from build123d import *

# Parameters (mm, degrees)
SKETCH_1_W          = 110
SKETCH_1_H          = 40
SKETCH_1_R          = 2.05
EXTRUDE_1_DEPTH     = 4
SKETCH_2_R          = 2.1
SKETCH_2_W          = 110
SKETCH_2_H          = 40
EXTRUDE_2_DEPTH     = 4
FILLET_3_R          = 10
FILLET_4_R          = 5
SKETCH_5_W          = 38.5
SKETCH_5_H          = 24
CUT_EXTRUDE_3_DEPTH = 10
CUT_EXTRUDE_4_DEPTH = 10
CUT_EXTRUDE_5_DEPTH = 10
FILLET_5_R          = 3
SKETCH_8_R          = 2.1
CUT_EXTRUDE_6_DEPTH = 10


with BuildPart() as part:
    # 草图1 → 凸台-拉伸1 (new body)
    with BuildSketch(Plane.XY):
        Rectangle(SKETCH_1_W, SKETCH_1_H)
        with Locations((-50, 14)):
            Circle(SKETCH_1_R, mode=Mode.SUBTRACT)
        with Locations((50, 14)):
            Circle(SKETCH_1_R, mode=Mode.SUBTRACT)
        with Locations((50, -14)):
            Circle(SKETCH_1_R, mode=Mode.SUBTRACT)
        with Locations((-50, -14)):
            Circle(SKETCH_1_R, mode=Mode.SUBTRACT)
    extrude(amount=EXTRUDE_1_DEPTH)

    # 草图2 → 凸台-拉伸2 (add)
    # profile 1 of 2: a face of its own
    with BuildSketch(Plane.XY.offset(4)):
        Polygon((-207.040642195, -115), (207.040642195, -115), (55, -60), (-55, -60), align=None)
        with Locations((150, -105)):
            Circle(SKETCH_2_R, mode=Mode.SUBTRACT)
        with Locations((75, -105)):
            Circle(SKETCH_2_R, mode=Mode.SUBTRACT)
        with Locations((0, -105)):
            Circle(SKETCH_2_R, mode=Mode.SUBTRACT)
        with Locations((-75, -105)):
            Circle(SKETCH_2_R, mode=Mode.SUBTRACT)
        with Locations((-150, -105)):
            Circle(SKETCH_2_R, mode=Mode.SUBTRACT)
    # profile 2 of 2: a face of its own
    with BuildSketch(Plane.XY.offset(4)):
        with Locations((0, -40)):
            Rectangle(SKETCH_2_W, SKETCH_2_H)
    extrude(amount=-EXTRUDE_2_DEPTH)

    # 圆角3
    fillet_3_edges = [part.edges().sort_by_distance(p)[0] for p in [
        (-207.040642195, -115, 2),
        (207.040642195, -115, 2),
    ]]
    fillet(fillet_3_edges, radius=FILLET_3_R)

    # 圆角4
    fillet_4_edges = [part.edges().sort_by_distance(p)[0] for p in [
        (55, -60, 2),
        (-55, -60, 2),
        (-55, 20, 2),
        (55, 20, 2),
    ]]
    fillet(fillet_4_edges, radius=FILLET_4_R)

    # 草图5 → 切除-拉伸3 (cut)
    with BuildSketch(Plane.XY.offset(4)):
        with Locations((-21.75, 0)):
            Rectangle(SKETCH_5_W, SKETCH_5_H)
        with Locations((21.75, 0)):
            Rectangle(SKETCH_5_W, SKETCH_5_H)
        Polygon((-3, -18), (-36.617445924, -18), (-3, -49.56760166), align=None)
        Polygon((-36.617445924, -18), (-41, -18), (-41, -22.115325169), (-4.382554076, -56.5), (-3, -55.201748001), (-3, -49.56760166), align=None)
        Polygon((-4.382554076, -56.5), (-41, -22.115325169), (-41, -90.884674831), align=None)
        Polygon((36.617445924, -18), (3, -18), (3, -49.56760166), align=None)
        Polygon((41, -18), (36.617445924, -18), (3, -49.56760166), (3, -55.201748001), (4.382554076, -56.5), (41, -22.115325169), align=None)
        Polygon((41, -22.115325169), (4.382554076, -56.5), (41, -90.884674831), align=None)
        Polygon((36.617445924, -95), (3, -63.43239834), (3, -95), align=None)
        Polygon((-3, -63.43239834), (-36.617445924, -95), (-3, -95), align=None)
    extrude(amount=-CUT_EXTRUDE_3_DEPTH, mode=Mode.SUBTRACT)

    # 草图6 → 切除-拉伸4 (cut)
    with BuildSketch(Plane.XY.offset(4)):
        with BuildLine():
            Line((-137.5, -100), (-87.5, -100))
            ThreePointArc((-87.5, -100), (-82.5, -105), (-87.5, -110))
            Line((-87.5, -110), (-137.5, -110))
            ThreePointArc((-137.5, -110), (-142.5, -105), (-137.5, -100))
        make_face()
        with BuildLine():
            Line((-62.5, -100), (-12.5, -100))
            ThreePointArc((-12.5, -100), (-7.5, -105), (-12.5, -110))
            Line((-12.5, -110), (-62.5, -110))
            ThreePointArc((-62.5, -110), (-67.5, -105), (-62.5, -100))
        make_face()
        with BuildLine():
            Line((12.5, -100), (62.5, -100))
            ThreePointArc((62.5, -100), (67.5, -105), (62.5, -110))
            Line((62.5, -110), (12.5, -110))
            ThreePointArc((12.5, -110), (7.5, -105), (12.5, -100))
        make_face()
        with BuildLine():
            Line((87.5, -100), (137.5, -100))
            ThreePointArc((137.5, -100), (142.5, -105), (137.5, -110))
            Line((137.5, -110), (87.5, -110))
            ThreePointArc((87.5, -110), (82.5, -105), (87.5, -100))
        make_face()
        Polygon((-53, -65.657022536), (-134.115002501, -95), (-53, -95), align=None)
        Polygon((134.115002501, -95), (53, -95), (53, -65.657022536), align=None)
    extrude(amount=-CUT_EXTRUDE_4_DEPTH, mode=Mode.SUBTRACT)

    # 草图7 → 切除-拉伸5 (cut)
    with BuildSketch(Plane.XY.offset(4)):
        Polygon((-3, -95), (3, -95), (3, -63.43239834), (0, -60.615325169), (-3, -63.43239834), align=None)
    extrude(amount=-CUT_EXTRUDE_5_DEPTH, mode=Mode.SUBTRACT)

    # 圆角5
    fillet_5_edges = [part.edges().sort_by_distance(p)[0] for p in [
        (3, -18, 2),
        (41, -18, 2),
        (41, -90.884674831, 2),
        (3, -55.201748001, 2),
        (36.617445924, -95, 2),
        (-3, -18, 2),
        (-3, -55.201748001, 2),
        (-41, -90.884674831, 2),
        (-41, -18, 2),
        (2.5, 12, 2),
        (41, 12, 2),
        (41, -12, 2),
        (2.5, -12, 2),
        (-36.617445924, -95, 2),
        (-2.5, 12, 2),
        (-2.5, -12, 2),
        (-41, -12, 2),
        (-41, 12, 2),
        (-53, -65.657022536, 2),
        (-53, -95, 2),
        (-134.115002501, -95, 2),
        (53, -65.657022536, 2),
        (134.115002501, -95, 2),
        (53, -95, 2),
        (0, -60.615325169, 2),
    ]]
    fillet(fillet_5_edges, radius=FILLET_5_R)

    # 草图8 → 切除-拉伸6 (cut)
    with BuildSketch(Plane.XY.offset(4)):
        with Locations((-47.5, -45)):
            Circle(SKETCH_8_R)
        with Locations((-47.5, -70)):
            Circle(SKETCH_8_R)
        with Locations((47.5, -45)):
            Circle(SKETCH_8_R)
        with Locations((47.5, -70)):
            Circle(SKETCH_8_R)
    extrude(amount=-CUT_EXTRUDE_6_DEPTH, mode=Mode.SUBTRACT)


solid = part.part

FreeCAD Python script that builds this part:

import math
import FreeCAD as App
import Part
import Sketcher

V = App.Vector


def edges_at(feature, points):
    """Names of the edges that pass closest to the given points."""
    edges = feature.Shape.Edges
    near = lambda p: min(range(len(edges)), key=lambda i: edges[i].distToShape(Part.Vertex(*p))[0])
    return sorted({f"Edge{near(p) + 1}" for p in points})


def add_polygon(sketch, points):
    """Adds a closed chain of lines whose ends are joined by coincident constraints."""
    first, n = sketch.GeometryCount, len(points)
    for a, b in zip(points, points[1:] + points[:1]):
        sketch.addGeometry(Part.LineSegment(App.Vector(*a, 0), App.Vector(*b, 0)), False)
    for i in range(n):
        sketch.addConstraint(Sketcher.Constraint("Coincident", first + i, 2, first + (i + 1) % n, 1))

doc = App.newDocument("Part")
body = doc.addObject("PartDesign::Body", "Body")

# Sketch on XY plane
sketch1 = doc.addObject("Sketcher::SketchObject", "Sketch")
body.addObject(sketch1)
sketch1.AttachmentSupport = (doc.XY_Plane, [""])
sketch1.MapMode = "FlatFace"
add_polygon(sketch1, [(-55, 20), (-55, -20), (55, -20), (55, 20)])  # lines 0-3
sketch1.addGeometry(Part.Circle(V(-50, -14, 0), V(0, 0, 1), 2), False)  # 4
sketch1.addGeometry(Part.Circle(V(50, -14, 0), V(0, 0, 1), 2), False)  # 5
sketch1.addGeometry(Part.Circle(V(-50, 14, 0), V(0, 0, 1), 2), False)  # 6
sketch1.addGeometry(Part.Circle(V(50, 14, 0), V(0, 0, 1), 2), False)  # 7
sketch1.addConstraint(Sketcher.Constraint("Vertical", 0))
sketch1.addConstraint(Sketcher.Constraint("Horizontal", 1))
sketch1.addConstraint(Sketcher.Constraint("Vertical", 2))
sketch1.addConstraint(Sketcher.Constraint("Horizontal", 3))
sketch1.addConstraint(Sketcher.Constraint("Equal", 4, 5))
sketch1.addConstraint(Sketcher.Constraint("Equal", 5, 6))
sketch1.addConstraint(Sketcher.Constraint("Equal", 6, 7))
sketch1.addConstraint(Sketcher.Constraint("Symmetric", 5, 3, 6, 3, -1, 1))
sketch1.addConstraint(Sketcher.Constraint("Symmetric", 4, 3, 7, 3, -1, 1))
sketch1.addConstraint(Sketcher.Constraint("Symmetric", 0, 2, 2, 2, -1, 1))
sketch1.addConstraint(Sketcher.Constraint("Symmetric", 4, 3, 5, 3, -2))
sketch1.addConstraint(Sketcher.Constraint("Diameter", 4, 4.1))
sketch1.addConstraint(Sketcher.Constraint("DistanceX", 1, 1, 1, 2, 110.0))
sketch1.addConstraint(Sketcher.Constraint("DistanceY", 0, 2, 0, 1, 40.0))
sketch1.addConstraint(Sketcher.Constraint("DistanceX", 4, 3, -1, 1, 50.0))
sketch1.addConstraint(Sketcher.Constraint("DistanceY", 4, 3, -1, 1, 14.0))
pad1 = doc.addObject("PartDesign::Pad", "Pad")
body.addObject(pad1)
pad1.Profile = sketch1
pad1.Length = 4

# Sketch on XY plane
sketch2 = doc.addObject("Sketcher::SketchObject", "Sketch001")
body.addObject(sketch2)
sketch2.AttachmentSupport = (doc.XY_Plane, [""])
sketch2.MapMode = "FlatFace"
sketch2.AttachmentOffset = App.Placement(V(0, 0, 4), App.Rotation())
add_polygon(sketch2, [(-207, -115), (207, -115), (55, -60), (55, -20), (-55, -20), (-55, -60)])  # lines 0-5
sketch2.addGeometry(Part.Circle(V(-150, -105, 0), V(0, 0, 1), 2.1), False)  # 6
sketch2.addGeometry(Part.Circle(V(-75, -105, 0), V(0, 0, 1), 2.1), False)  # 7
sketch2.addGeometry(Part.Circle(V(0, -105, 0), V(0, 0, 1), 2.1), False)  # 8
sketch2.addGeometry(Part.Circle(V(75, -105, 0), V(0, 0, 1), 2.1), False)  # 9
sketch2.addGeometry(Part.Circle(V(150, -105, 0), V(0, 0, 1), 2.1), False)  # 10
sketch2.addConstraint(Sketcher.Constraint("Horizontal", 0))
sketch2.addConstraint(Sketcher.Constraint("Vertical", 2))
sketch2.addConstraint(Sketcher.Constraint("Horizontal", 3))
sketch2.addConstraint(Sketcher.Constraint("Vertical", 4))
sketch2.addConstraint(Sketcher.Constraint("Equal", 6, 7))
sketch2.addConstraint(Sketcher.Constraint("Equal", 7, 8))
sketch2.addConstraint(Sketcher.Constraint("Equal", 8, 9))
sketch2.addConstraint(Sketcher.Constraint("Equal", 9, 10))
sketch2.addConstraint(Sketcher.Constraint("Symmetric", 7, 3, 9, 3, -2))
sketch2.addConstraint(Sketcher.Constraint("Symmetric", 6, 3, 10, 3, -2))
sketch2.addConstraint(Sketcher.Constraint("Symmetric", 1, 2, 4, 2, -2))
sketch2.addConstraint(Sketcher.Constraint("PointOnObject", 8, 3, -2))
sketch2.addConstraint(Sketcher.Constraint("Horizontal", 6, 3, 7, 3))
sketch2.addConstraint(Sketcher.Constraint("Horizontal", 7, 3, 8, 3))
sketch2.addConstraint(Sketcher.Constraint("Equal", 1, 5))
sketch2.addConstraint(Sketcher.Constraint("Diameter", 6, 4.2))
sketch2.addConstraint(Sketcher.Constraint("DistanceX", 3, 2, 3, 1, 110.0))
sketch2.addConstraint(Sketcher.Constraint("DistanceY", 2, 1, 2, 2, 40.0))
sketch2.addConstraint(Sketcher.Constraint("DistanceX", 6, 3, -1, 1, 150.0))
sketch2.addConstraint(Sketcher.Constraint("DistanceY", 6, 3, -1, 1, 105.0))
sketch2.addConstraint(Sketcher.Constraint("DistanceX", 7, 3, -1, 1, 75.0))
sketch2.addConstraint(Sketcher.Constraint("DistanceY", 0, 2, -1, 1, 115.0))
sketch2.addConstraint(Sketcher.Constraint("DistanceY", 1, 2, -1, 1, 60.0))
sketch2.addConstraint(Sketcher.Constraint("Distance", 1, 161.68289))
pad2 = doc.addObject("PartDesign::Pad", "Pad001")
body.addObject(pad2)
pad2.Profile = sketch2
pad2.Length = 4
pad2.Reversed = True
doc.recompute()

fillet = doc.addObject("PartDesign::Fillet", "Fillet")
body.addObject(fillet)
fillet.Base = (pad2, edges_at(pad2, [(-207.041, -115, 2), (207.041, -115, 2)]))
fillet.Radius = 10
doc.recompute()

fillet2 = doc.addObject("PartDesign::Fillet", "Fillet001")
body.addObject(fillet2)
fillet2.Base = (fillet, edges_at(fillet, [
    (55, -60, 2),
    (-55, -60, 2),
    (-55, 20, 2),
    (55, 20, 2),
]))
fillet2.Radius = 5

# Sketch on XY plane
sketch3 = doc.addObject("Sketcher::SketchObject", "Sketch002")
body.addObject(sketch3)
sketch3.AttachmentSupport = (doc.XY_Plane, [""])
sketch3.MapMode = "FlatFace"
sketch3.AttachmentOffset = App.Placement(V(0, 0, 4), App.Rotation())
add_polygon(sketch3, [(-41, 12), (-41, -12), (-2.5, -12), (-2.5, 12)])  # lines 0-3
add_polygon(sketch3, [(2.5, 12), (2.5, -12), (41, -12), (41, 12)])  # lines 4-7
add_polygon(sketch3, [(-3, -18), (-41, -18), (-41, -90.9), (-4.4, -56.5), (-3, -55.2)])  # lines 8-12
add_polygon(sketch3, [(3, -18), (3, -55.2), (4.4, -56.5), (41, -90.9), (41, -18)])  # lines 13-17
add_polygon(sketch3, [(36.6, -95), (3, -63.4), (3, -95)])  # lines 18-20
add_polygon(sketch3, [(-3, -63.4), (-36.6, -95), (-3, -95)])  # lines 21-23
sketch3.addConstraint(Sketcher.Constraint("Vertical", 0))
sketch3.addConstraint(Sketcher.Constraint("Horizontal", 1))
sketch3.addConstraint(Sketcher.Constraint("Vertical", 2))
sketch3.addConstraint(Sketcher.Constraint("Horizontal", 3))
sketch3.addConstraint(Sketcher.Constraint("Vertical", 4))
sketch3.addConstraint(Sketcher.Constraint("Horizontal", 5))
sketch3.addConstraint(Sketcher.Constraint("Vertical", 6))
sketch3.addConstraint(Sketcher.Constraint("Horizontal", 7))
sketch3.addConstraint(Sketcher.Constraint("Horizontal", 8))
sketch3.addConstraint(Sketcher.Constraint("Vertical", 9))
sketch3.addConstraint(Sketcher.Constraint("Vertical", 12))
sketch3.addConstraint(Sketcher.Constraint("Vertical", 13))
sketch3.addConstraint(Sketcher.Constraint("Vertical", 16))
sketch3.addConstraint(Sketcher.Constraint("Horizontal", 17))
sketch3.addConstraint(Sketcher.Constraint("Vertical", 19))
sketch3.addConstraint(Sketcher.Constraint("Horizontal", 20))
sketch3.addConstraint(Sketcher.Constraint("Horizontal", 22))
sketch3.addConstraint(Sketcher.Constraint("Vertical", 23))
sketch3.addConstraint(Sketcher.Constraint("Symmetric", 2, 2, 4, 2, -1, 1))
sketch3.addConstraint(Sketcher.Constraint("Symmetric", 0, 2, 6, 2, -1, 1))
sketch3.addConstraint(Sketcher.Constraint("Symmetric", 11, 2, 13, 2, -2))
sketch3.addConstraint(Sketcher.Constraint("Symmetric", 10, 2, 14, 2, -2))
sketch3.addConstraint(Sketcher.Constraint("Symmetric", 9, 2, 15, 2, -2))
sketch3.addConstraint(Sketcher.Constraint("Symmetric", 20, 2, 21, 2, -2))
sketch3.addConstraint(Sketcher.Constraint("Symmetric", 18, 2, 23, 2, -2))
sketch3.addConstraint(Sketcher.Constraint("Parallel", 10, 11))
sketch3.addConstraint(Sketcher.Constraint("Parallel", 15, 18))
sketch3.addConstraint(Sketcher.Constraint("Horizontal", 1, 2, 4, 2))
sketch3.addConstraint(Sketcher.Constraint("Horizontal", 12, 2, 16, 2))
sketch3.addConstraint(Sketcher.Constraint("Vertical", 3, 2, 8, 2))
sketch3.addConstraint(Sketcher.Constraint("Vertical", 17, 2, 18, 2))
sketch3.addConstraint(Sketcher.Constraint("DistanceX", 8, 2, 8, 1, 38.0))
sketch3.addConstraint(Sketcher.Constraint("DistanceY", 0, 2, 0, 1, 24.0))
sketch3.addConstraint(Sketcher.Constraint("DistanceX", 1, 1, 1, 2, 38.5))
sketch3.addConstraint(Sketcher.Constraint("DistanceX", 0, 2, -1, 1, 41.0))
sketch3.addConstraint(Sketcher.Constraint("DistanceY", 8, 2, -1, 1, 18.0))
sketch3.addConstraint(Sketcher.Constraint("DistanceY", 19, 2, -1, 1, 95.0))
sketch3.addConstraint(Sketcher.Constraint("DistanceY", 10, 2, -1, 1, 56.5))
sketch3.addConstraint(Sketcher.Constraint("DistanceY", 19, 2, 19, 1, 31.567602))
sketch3.addConstraint(Sketcher.Constraint("Distance", 10, 50.230899))
sketch3.addConstraint(Sketcher.Constraint("DistanceY", 12, 1, 12, 2, 37.201748))
pocket1 = doc.addObject("PartDesign::Pocket", "Pocket")
body.addObject(pocket1)
pocket1.Profile = sketch3
pocket1.Length = 10

# Sketch on XY plane
sketch4 = doc.addObject("Sketcher::SketchObject", "Sketch003")
body.addObject(sketch4)
sketch4.AttachmentSupport = (doc.XY_Plane, [""])
sketch4.MapMode = "FlatFace"
sketch4.AttachmentOffset = App.Placement(V(0, 0, 4), App.Rotation())
sketch4.addGeometry(Part.LineSegment(V(-88, -100, 0), V(-138, -100, 0)), False)  # 0
sketch4.addGeometry(Part.ArcOfCircle(Part.Circle(V(-138, -105, 0), V(0, 0, 1), 5), math.radians(90), math.radians(270)), False)  # 1
sketch4.addGeometry(Part.LineSegment(V(-138, -110, 0), V(-88, -110, 0)), False)  # 2
sketch4.addGeometry(Part.ArcOfCircle(Part.Circle(V(-88, -105, 0), V(0, 0, 1), 5), math.radians(-90), math.radians(90)), False)  # 3
sketch4.addGeometry(Part.LineSegment(V(-12, -100, 0), V(-62, -100, 0)), False)  # 4
sketch4.addGeometry(Part.ArcOfCircle(Part.Circle(V(-62, -105, 0), V(0, 0, 1), 5), math.radians(90), math.radians(270)), False)  # 5
sketch4.addGeometry(Part.LineSegment(V(-62, -110, 0), V(-12, -110, 0)), False)  # 6
sketch4.addGeometry(Part.ArcOfCircle(Part.Circle(V(-12, -105, 0), V(0, 0, 1), 5), math.radians(-90), math.radians(90)), False)  # 7
sketch4.addGeometry(Part.LineSegment(V(62, -100, 0), V(12, -100, 0)), False)  # 8
sketch4.addGeometry(Part.ArcOfCircle(Part.Circle(V(12, -105, 0), V(0, 0, 1), 5), math.radians(90), math.radians(270)), False)  # 9
sketch4.addGeometry(Part.LineSegment(V(12, -110, 0), V(62, -110, 0)), False)  # 10
sketch4.addGeometry(Part.ArcOfCircle(Part.Circle(V(62, -105, 0), V(0, 0, 1), 5), math.radians(-90), math.radians(90)), False)  # 11
sketch4.addGeometry(Part.LineSegment(V(138, -100, 0), V(88, -100, 0)), False)  # 12
sketch4.addGeometry(Part.ArcOfCircle(Part.Circle(V(88, -105, 0), V(0, 0, 1), 5), math.radians(90), math.radians(270)), False)  # 13
sketch4.addGeometry(Part.LineSegment(V(88, -110, 0), V(138, -110, 0)), False)  # 14
sketch4.addGeometry(Part.ArcOfCircle(Part.Circle(V(138, -105, 0), V(0, 0, 1), 5), math.radians(-90), math.radians(90)), False)  # 15
add_polygon(sketch4, [(-53, -66), (-134, -95), (-53, -95)])  # lines 16-18
add_polygon(sketch4, [(53, -95), (134, -95), (53, -66)])  # lines 19-21
sketch4.addConstraint(Sketcher.Constraint("Tangent", 0, 2, 1, 1))
sketch4.addConstraint(Sketcher.Constraint("Tangent", 1, 2, 2, 1))
sketch4.addConstraint(Sketcher.Constraint("Tangent", 2, 2, 3, 1))
sketch4.addConstraint(Sketcher.Constraint("Tangent", 3, 2, 0, 1))
sketch4.addConstraint(Sketcher.Constraint("Tangent", 4, 2, 5, 1))
sketch4.addConstraint(Sketcher.Constraint("Tangent", 5, 2, 6, 1))
sketch4.addConstraint(Sketcher.Constraint("Tangent", 6, 2, 7, 1))
sketch4.addConstraint(Sketcher.Constraint("Tangent", 7, 2, 4, 1))
sketch4.addConstraint(Sketcher.Constraint("Tangent", 8, 2, 9, 1))
sketch4.addConstraint(Sketcher.Constraint("Tangent", 9, 2, 10, 1))
sketch4.addConstraint(Sketcher.Constraint("Tangent", 10, 2, 11, 1))
sketch4.addConstraint(Sketcher.Constraint("Tangent", 11, 2, 8, 1))
sketch4.addConstraint(Sketcher.Constraint("Tangent", 12, 2, 13, 1))
sketch4.addConstraint(Sketcher.Constraint("Tangent", 13, 2, 14, 1))
sketch4.addConstraint(Sketcher.Constraint("Tangent", 14, 2, 15, 1))
sketch4.addConstraint(Sketcher.Constraint("Tangent", 15, 2, 12, 1))
sketch4.addConstraint(Sketcher.Constraint("Horizontal", 0))
sketch4.addConstraint(Sketcher.Constraint("Horizontal", 2))
sketch4.addConstraint(Sketcher.Constraint("Horizontal", 4))
sketch4.addConstraint(Sketcher.Constraint("Horizontal", 6))
sketch4.addConstraint(Sketcher.Constraint("Horizontal", 8))
sketch4.addConstraint(Sketcher.Constraint("Horizontal", 10))
sketch4.addConstraint(Sketcher.Constraint("Horizontal", 12))
sketch4.addConstraint(Sketcher.Constraint("Horizontal", 14))
sketch4.addConstraint(Sketcher.Constraint("Horizontal", 17))
sketch4.addConstraint(Sketcher.Constraint("Vertical", 18))
sketch4.addConstraint(Sketcher.Constraint("Horizontal", 19))
sketch4.addConstraint(Sketcher.Constraint("Vertical", 21))
sketch4.addConstraint(Sketcher.Constraint("Equal", 3, 5))
sketch4.addConstraint(Sketcher.Constraint("Equal", 7, 9))
sketch4.addConstraint(Sketcher.Constraint("Equal", 11, 13))
sketch4.addConstraint(Sketcher.Constraint("Symmetric", 7, 3, 9, 3, -2))
sketch4.addConstraint(Sketcher.Constraint("Symmetric", 3, 3, 13, 3, -2))
sketch4.addConstraint(Sketcher.Constraint("Symmetric", 16, 2, 19, 2, -2))
sketch4.addConstraint(Sketcher.Constraint("Symmetric", 18, 2, 20, 2, -2))
sketch4.addConstraint(Sketcher.Constraint("Horizontal", 3, 3, 5, 3))
sketch4.addConstraint(Sketcher.Constraint("Equal", 2, 4))
sketch4.addConstraint(Sketcher.Constraint("Equal", 6, 8))
sketch4.addConstraint(Sketcher.Constraint("Equal", 10, 12))
sketch4.addConstraint(Sketcher.Constraint("Radius", 1, 5.0))
sketch4.addConstraint(Sketcher.Constraint("DistanceX", 0, 2, 0, 1, 50.0))
sketch4.addConstraint(Sketcher.Constraint("DistanceY", 1, 3, -1, 1, 105.0))
sketch4.addConstraint(Sketcher.Constraint("DistanceY", 16, 2, -1, 1, 95.0))
sketch4.addConstraint(Sketcher.Constraint("DistanceX", 17, 2, -1, 1, 53.0))
sketch4.addConstraint(Sketcher.Constraint("DistanceX", 3, 3, 5, 3, 25.0))
sketch4.addConstraint(Sketcher.Constraint("DistanceX", 7, 3, 9, 3, 25.0))
sketch4.addConstraint(Sketcher.Constraint("DistanceX", 17, 1, 17, 2, 81.115003))
sketch4.addConstraint(Sketcher.Constraint("DistanceY", 18, 1, 18, 2, 29.342977))
pocket2 = doc.addObject("PartDesign::Pocket", "Pocket001")
body.addObject(pocket2)
pocket2.Profile = sketch4
pocket2.Length = 10

# Sketch on XY plane
sketch5 = doc.addObject("Sketcher::SketchObject", "Sketch004")
body.addObject(sketch5)
sketch5.AttachmentSupport = (doc.XY_Plane, [""])
sketch5.MapMode = "FlatFace"
sketch5.AttachmentOffset = App.Placement(V(0, 0, 4), App.Rotation())
add_polygon(sketch5, [(-3, -95), (3, -95), (3, -63.4), (0, -60.6), (-3, -63.4)])  # lines 0-4
sketch5.addConstraint(Sketcher.Constraint("Horizontal", 0))
sketch5.addConstraint(Sketcher.Constraint("Vertical", 1))
sketch5.addConstraint(Sketcher.Constraint("Vertical", 4))
sketch5.addConstraint(Sketcher.Constraint("Symmetric", 1, 2, 3, 2, -2))
sketch5.addConstraint(Sketcher.Constraint("PointOnObject", 2, 2, -2))
sketch5.addConstraint(Sketcher.Constraint("DistanceX", 0, 1, 0, 2, 6.0))
sketch5.addConstraint(Sketcher.Constraint("DistanceY", 0, 2, -1, 1, 95.0))
sketch5.addConstraint(Sketcher.Constraint("DistanceY", 1, 1, 1, 2, 31.567602))
sketch5.addConstraint(Sketcher.Constraint("Distance", 2, 4.115325))
pocket3 = doc.addObject("PartDesign::Pocket", "Pocket002")
body.addObject(pocket3)
pocket3.Profile = sketch5
pocket3.Length = 10
doc.recompute()

fillet3 = doc.addObject("PartDesign::Fillet", "Fillet002")
body.addObject(fillet3)
fillet3.Base = (pocket3, edges_at(pocket3, [
    (3, -18, 2),
    (41, -18, 2),
    (41, -90.885, 2),
    (3, -55.202, 2),
    (36.617, -95, 2),
    (-3, -18, 2),
    (-3, -55.202, 2),
    (-41, -90.885, 2),
    (-41, -18, 2),
    (2.5, 12, 2),
    (41, 12, 2),
    (41, -12, 2),
    (2.5, -12, 2),
    (-36.617, -95, 2),
    (-2.5, 12, 2),
    (-2.5, -12, 2),
    (-41, -12, 2),
    (-41, 12, 2),
    (-53, -65.657, 2),
    (-53, -95, 2),
    (-134.115, -95, 2),
    (53, -65.657, 2),
    (134.115, -95, 2),
    (53, -95, 2),
    (0, -60.615, 2),
]))
fillet3.Radius = 3

# Sketch on XY plane
sketch6 = doc.addObject("Sketcher::SketchObject", "Sketch005")
body.addObject(sketch6)
sketch6.AttachmentSupport = (doc.XY_Plane, [""])
sketch6.MapMode = "FlatFace"
sketch6.AttachmentOffset = App.Placement(V(0, 0, 4), App.Rotation())
sketch6.addGeometry(Part.Circle(V(-47.5, -45, 0), V(0, 0, 1), 2.1), False)
sketch6.addGeometry(Part.Circle(V(-47.5, -70, 0), V(0, 0, 1), 2.1), False)
sketch6.addGeometry(Part.Circle(V(47.5, -45, 0), V(0, 0, 1), 2.1), False)
sketch6.addGeometry(Part.Circle(V(47.5, -70, 0), V(0, 0, 1), 2.1), False)
sketch6.addConstraint(Sketcher.Constraint("Equal", 0, 1))
sketch6.addConstraint(Sketcher.Constraint("Equal", 1, 2))
sketch6.addConstraint(Sketcher.Constraint("Equal", 2, 3))
sketch6.addConstraint(Sketcher.Constraint("Symmetric", 0, 3, 2, 3, -2))
sketch6.addConstraint(Sketcher.Constraint("Symmetric", 1, 3, 3, 3, -2))
sketch6.addConstraint(Sketcher.Constraint("Vertical", 0, 3, 1, 3))
sketch6.addConstraint(Sketcher.Constraint("Diameter", 0, 4.2))
sketch6.addConstraint(Sketcher.Constraint("DistanceY", 0, 3, -1, 1, 45.0))
sketch6.addConstraint(Sketcher.Constraint("DistanceY", 1, 3, -1, 1, 70.0))
sketch6.addConstraint(Sketcher.Constraint("DistanceX", 0, 3, 2, 3, 95.0))
pocket4 = doc.addObject("PartDesign::Pocket", "Pocket003")
body.addObject(pocket4)
pocket4.Profile = sketch6
pocket4.Length = 10

doc.recompute()
